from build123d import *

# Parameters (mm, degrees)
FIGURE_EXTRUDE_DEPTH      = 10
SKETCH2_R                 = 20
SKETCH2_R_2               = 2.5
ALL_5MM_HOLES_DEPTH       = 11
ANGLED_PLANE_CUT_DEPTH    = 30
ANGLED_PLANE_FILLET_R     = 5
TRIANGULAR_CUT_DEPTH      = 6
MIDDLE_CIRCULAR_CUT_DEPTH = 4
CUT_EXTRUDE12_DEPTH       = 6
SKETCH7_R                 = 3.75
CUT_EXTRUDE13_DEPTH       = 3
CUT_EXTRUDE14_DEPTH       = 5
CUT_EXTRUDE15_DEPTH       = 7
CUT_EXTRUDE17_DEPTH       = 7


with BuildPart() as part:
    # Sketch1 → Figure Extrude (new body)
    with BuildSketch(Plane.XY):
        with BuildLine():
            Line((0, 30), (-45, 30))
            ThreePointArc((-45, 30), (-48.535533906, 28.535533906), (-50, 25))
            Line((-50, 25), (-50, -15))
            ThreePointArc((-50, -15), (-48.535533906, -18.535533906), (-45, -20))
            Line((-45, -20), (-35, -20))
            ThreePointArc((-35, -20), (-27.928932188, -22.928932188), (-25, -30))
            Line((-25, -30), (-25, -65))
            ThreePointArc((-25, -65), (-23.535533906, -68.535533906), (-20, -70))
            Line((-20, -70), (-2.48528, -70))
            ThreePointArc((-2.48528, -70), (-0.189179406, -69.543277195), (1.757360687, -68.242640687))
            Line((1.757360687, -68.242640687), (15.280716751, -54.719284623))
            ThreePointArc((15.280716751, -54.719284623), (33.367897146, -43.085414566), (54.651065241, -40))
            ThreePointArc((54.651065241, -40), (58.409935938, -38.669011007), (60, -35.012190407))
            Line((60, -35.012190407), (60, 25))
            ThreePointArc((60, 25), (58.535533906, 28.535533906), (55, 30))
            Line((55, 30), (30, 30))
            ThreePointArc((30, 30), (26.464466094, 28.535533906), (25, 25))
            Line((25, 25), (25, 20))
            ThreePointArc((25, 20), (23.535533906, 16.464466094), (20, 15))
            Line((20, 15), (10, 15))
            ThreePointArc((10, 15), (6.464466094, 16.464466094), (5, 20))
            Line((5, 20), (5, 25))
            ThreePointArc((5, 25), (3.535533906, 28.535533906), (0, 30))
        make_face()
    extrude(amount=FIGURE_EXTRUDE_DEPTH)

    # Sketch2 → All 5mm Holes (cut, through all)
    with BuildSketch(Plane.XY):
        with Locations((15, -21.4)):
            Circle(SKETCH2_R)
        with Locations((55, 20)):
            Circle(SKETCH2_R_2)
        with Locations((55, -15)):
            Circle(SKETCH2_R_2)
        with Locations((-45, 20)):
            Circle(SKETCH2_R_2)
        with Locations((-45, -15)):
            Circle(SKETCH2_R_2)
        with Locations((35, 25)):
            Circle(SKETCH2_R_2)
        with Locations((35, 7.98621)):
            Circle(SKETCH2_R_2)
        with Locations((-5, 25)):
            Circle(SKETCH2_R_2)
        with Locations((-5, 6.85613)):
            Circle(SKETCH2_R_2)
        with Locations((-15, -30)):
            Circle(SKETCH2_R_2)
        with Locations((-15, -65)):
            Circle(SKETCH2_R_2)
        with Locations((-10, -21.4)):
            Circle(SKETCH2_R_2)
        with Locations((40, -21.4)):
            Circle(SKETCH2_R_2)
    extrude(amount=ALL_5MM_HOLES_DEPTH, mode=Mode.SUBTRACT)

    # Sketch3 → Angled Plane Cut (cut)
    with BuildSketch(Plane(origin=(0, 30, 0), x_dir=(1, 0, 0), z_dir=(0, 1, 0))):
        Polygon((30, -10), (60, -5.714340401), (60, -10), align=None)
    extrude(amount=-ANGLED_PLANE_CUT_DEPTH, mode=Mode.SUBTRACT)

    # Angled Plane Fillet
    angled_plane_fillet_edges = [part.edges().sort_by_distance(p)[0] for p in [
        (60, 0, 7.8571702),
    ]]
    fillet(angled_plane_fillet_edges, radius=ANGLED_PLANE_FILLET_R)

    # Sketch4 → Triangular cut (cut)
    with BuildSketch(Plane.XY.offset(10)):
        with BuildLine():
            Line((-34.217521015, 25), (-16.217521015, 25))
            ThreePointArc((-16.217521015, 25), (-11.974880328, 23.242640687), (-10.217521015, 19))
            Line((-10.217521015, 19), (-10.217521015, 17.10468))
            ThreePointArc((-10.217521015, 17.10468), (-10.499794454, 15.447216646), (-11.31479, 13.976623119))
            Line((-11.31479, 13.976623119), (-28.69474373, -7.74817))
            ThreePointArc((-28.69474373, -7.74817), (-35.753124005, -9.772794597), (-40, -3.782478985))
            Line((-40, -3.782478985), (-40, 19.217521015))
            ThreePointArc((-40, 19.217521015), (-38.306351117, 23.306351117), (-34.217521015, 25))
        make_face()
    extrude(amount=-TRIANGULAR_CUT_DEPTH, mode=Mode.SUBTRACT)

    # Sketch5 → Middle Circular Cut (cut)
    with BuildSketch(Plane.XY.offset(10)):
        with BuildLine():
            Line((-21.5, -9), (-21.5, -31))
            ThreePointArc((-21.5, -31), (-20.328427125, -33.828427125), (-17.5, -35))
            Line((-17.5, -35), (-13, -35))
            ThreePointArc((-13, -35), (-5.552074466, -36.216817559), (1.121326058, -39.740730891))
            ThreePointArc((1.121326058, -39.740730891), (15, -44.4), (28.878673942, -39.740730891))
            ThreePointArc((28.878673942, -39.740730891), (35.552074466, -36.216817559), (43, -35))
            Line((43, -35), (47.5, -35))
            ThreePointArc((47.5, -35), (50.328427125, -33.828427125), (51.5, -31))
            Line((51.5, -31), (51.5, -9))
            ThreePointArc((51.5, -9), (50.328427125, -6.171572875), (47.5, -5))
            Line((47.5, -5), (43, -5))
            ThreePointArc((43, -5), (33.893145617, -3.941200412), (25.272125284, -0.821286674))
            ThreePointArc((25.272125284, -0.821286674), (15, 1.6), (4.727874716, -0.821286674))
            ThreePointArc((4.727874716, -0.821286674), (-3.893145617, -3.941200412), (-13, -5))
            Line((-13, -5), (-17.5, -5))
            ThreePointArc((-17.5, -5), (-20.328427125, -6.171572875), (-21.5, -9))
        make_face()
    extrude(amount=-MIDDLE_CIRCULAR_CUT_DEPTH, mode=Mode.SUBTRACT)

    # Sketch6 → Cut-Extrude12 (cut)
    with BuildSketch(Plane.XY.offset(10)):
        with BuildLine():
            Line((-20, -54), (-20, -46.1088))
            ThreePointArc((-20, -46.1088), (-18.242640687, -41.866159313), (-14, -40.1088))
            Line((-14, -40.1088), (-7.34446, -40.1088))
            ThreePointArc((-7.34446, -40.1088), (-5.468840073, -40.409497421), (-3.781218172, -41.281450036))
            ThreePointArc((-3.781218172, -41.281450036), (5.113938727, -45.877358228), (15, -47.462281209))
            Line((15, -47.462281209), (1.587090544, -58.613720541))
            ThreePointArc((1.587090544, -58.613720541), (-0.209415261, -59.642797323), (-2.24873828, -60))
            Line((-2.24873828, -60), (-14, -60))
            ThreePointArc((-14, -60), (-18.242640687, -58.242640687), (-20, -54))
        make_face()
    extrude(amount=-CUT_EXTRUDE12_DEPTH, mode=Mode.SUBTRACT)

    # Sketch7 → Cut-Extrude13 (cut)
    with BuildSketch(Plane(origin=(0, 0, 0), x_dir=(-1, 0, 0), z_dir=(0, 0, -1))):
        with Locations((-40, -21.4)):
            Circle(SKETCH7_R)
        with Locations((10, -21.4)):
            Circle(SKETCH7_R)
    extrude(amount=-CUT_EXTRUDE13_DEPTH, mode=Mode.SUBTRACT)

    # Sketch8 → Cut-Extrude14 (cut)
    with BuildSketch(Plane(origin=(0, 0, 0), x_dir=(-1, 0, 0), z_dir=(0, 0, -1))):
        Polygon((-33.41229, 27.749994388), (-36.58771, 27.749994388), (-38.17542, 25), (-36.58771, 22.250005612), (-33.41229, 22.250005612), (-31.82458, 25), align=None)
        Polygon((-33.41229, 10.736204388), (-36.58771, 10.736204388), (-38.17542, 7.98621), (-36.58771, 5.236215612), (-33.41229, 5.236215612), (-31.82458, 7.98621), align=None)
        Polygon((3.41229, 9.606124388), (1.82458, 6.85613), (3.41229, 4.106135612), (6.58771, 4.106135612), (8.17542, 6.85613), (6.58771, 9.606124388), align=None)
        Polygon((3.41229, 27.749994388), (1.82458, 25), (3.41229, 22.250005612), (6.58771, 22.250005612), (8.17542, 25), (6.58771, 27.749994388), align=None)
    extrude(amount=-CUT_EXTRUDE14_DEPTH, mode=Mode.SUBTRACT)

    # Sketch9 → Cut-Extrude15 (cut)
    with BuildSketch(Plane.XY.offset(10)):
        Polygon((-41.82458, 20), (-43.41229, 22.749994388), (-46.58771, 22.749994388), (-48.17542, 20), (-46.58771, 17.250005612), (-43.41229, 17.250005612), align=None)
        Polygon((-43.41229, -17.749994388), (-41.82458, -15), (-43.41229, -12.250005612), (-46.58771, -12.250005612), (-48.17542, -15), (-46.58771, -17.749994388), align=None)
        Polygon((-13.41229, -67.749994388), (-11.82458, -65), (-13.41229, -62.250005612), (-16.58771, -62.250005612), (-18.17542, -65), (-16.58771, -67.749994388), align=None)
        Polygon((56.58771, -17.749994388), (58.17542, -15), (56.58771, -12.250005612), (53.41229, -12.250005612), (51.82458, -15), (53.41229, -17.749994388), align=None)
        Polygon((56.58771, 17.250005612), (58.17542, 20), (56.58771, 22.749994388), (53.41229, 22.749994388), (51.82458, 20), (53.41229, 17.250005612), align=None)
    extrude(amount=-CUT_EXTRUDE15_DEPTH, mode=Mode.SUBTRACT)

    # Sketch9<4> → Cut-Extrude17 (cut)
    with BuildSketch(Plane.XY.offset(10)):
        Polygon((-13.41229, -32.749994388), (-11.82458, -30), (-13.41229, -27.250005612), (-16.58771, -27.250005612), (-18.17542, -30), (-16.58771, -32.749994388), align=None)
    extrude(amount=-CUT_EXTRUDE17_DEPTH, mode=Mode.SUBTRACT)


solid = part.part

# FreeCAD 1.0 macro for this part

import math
import FreeCAD as App
import Part
import Sketcher
Q = App.Units.Quantity


def edges_at(feature, points):
    """Names of the edges that pass closest to the given points."""
    edges = feature.Shape.Edges
    near = lambda p: min(range(len(edges)), key=lambda i: edges[i].distToShape(Part.Vertex(*p))[0])
    return sorted({f"Edge{near(p) + 1}" for p in points})

doc = App.newDocument("Part")
body = doc.addObject("PartDesign::Body", "Body")

# Sketch on XY plane
sketch1 = doc.addObject("Sketcher::SketchObject", "Sketch")
body.addObject(sketch1)
sketch1.AttachmentSupport = (doc.XY_Plane, [""])
sketch1.MapMode = "FlatFace"
sketch1.addGeometry([
    Part.LineSegment(App.Vector(0, 30, 0), App.Vector(-45, 30, 0)),  # 0
    Part.ArcOfCircle(Part.Circle(App.Vector(-45, 25, 0), App.Vector(0, 0, 1), 5), math.radians(90), math.radians(180)),  # 1
    Part.LineSegment(App.Vector(-50, 25, 0), App.Vector(-50, -15, 0)),  # 2
    Part.ArcOfCircle(Part.Circle(App.Vector(-45, -15, 0), App.Vector(0, 0, 1), 5), math.radians(180), math.radians(270)),  # 3
    Part.LineSegment(App.Vector(-45, -20, 0), App.Vector(-35, -20, 0)),  # 4
    Part.ArcOfCircle(Part.Circle(App.Vector(-35, -30, 0), App.Vector(0, 0, 1), 10), math.radians(0), math.radians(90)),  # 5
    Part.LineSegment(App.Vector(-25, -30, 0), App.Vector(-25, -65, 0)),  # 6
    Part.ArcOfCircle(Part.Circle(App.Vector(-20, -65, 0), App.Vector(0, 0, 1), 5), math.radians(180), math.radians(270)),  # 7
    Part.LineSegment(App.Vector(-20, -70, 0), App.Vector(-2.48528, -70, 0)),  # 8
    Part.ArcOfCircle(Part.Circle(App.Vector(-2.48528, -64, 0), App.Vector(0, 0, 1), 6), math.radians(-90), math.radians(-45)),  # 9
    Part.LineSegment(App.Vector(1.757361, -68.242641, 0), App.Vector(15.280717, -54.719285, 0)),  # 10
    Part.ArcOfCircle(Part.Circle(App.Vector(51.114498, -90.553066, 0), App.Vector(0, 0, 1), 50.67662), math.radians(85.998249), math.radians(135)),  # 11
    Part.ArcOfCircle(Part.Circle(App.Vector(55, -35.01219, 0), App.Vector(0, 0, 1), 5), math.radians(-94.001751), math.radians(0)),  # 12
    Part.LineSegment(App.Vector(60, -35.01219, 0), App.Vector(60, 25, 0)),  # 13
    Part.ArcOfCircle(Part.Circle(App.Vector(55, 25, 0), App.Vector(0, 0, 1), 5), math.radians(0), math.radians(90)),  # 14
    Part.LineSegment(App.Vector(55, 30, 0), App.Vector(30, 30, 0)),  # 15
    Part.ArcOfCircle(Part.Circle(App.Vector(30, 25, 0), App.Vector(0, 0, 1), 5), math.radians(90), math.radians(180)),  # 16
    Part.LineSegment(App.Vector(25, 25, 0), App.Vector(25, 20, 0)),  # 17
    Part.ArcOfCircle(Part.Circle(App.Vector(20, 20, 0), App.Vector(0, 0, 1), 5), math.radians(-90), math.radians(0)),  # 18
    Part.LineSegment(App.Vector(20, 15, 0), App.Vector(10, 15, 0)),  # 19
    Part.ArcOfCircle(Part.Circle(App.Vector(10, 20, 0), App.Vector(0, 0, 1), 5), math.radians(180), math.radians(270)),  # 20
    Part.LineSegment(App.Vector(5, 20, 0), App.Vector(5, 25, 0)),  # 21
    Part.ArcOfCircle(Part.Circle(App.Vector(0, 25, 0), App.Vector(0, 0, 1), 5), math.radians(0), math.radians(90)),  # 22
], False)
sketch1.addConstraint([
    Sketcher.Constraint("Tangent", 0, 2, 1, 1),
    Sketcher.Constraint("Tangent", 1, 2, 2, 1),
    Sketcher.Constraint("Tangent", 2, 2, 3, 1),
    Sketcher.Constraint("Tangent", 3, 2, 4, 1),
    Sketcher.Constraint("Tangent", 4, 2, 5, 2),
    Sketcher.Constraint("Tangent", 5, 1, 6, 1),
    Sketcher.Constraint("Tangent", 6, 2, 7, 1),
    Sketcher.Constraint("Tangent", 7, 2, 8, 1),
    Sketcher.Constraint("Tangent", 8, 2, 9, 1),
    Sketcher.Constraint("Tangent", 9, 2, 10, 1),
    Sketcher.Constraint("Tangent", 10, 2, 11, 2),
    Sketcher.Constraint("Tangent", 11, 1, 12, 1),
    Sketcher.Constraint("Tangent", 12, 2, 13, 1),
    Sketcher.Constraint("Tangent", 13, 2, 14, 1),
    Sketcher.Constraint("Tangent", 14, 2, 15, 1),
    Sketcher.Constraint("Tangent", 15, 2, 16, 1),
    Sketcher.Constraint("Tangent", 16, 2, 17, 1),
    Sketcher.Constraint("Tangent", 17, 2, 18, 2),
    Sketcher.Constraint("Tangent", 18, 1, 19, 1),
    Sketcher.Constraint("Tangent", 19, 2, 20, 2),
    Sketcher.Constraint("Tangent", 20, 1, 21, 1),
    Sketcher.Constraint("Tangent", 21, 2, 22, 1),
    Sketcher.Constraint("Tangent", 22, 2, 0, 1),
    Sketcher.Constraint("Horizontal", 0),
    Sketcher.Constraint("Vertical", 2),
    Sketcher.Constraint("Horizontal", 4),
    Sketcher.Constraint("Vertical", 6),
    Sketcher.Constraint("Horizontal", 8),
    Sketcher.Constraint("Vertical", 13),
    Sketcher.Constraint("Horizontal", 15),
    Sketcher.Constraint("Vertical", 17),
    Sketcher.Constraint("Horizontal", 19),
    Sketcher.Constraint("Vertical", 21),
    Sketcher.Constraint("Equal", 1, 3),
    Sketcher.Constraint("Equal", 3, 7),
    Sketcher.Constraint("Equal", 7, 12),
    Sketcher.Constraint("Equal", 12, 14),
    Sketcher.Constraint("Equal", 14, 16),
    Sketcher.Constraint("Equal", 16, 18),
    Sketcher.Constraint("Equal", 18, 20),
    Sketcher.Constraint("Equal", 20, 22),
    Sketcher.Constraint("PointOnObject", 22, 3, -2),
    Sketcher.Constraint("Horizontal", 1, 3, 14, 3),
    Sketcher.Constraint("Equal", 4, 19),
    Sketcher.Constraint("Radius", 1, Q("5 mm")),
    Sketcher.Constraint("Radius", 5, Q("10 mm")),
    Sketcher.Constraint("Radius", 9, Q("6 mm")),
    Sketcher.Constraint("DistanceX", 0, 2, 0, 1, Q("45 mm")),
    Sketcher.Constraint("DistanceX", 4, 1, 4, 2, Q("10 mm")),
    Sketcher.Constraint("DistanceX", 15, 2, 15, 1, Q("25 mm")),
    Sketcher.Constraint("DistanceY", 2, 2, 2, 1, Q("40 mm")),
    Sketcher.Constraint("DistanceY", 6, 2, 6, 1, Q("35 mm")),
    Sketcher.Constraint("DistanceY", 17, 2, 17, 1, Q("5 mm")),
    Sketcher.Constraint("Angle", 10, Q("45 deg")),
    Sketcher.Constraint("DistanceY", -1, 1, 1, 3, Q("25 mm")),
    Sketcher.Constraint("DistanceY", 11, 1, -1, 1, Q("40 mm")),
    Sketcher.Constraint("Radius", 11, Q("50.67662 mm")),
    Sketcher.Constraint("DistanceX", 8, 1, 8, 2, Q("17.51472 mm")),
])
pad1 = doc.addObject("PartDesign::Pad", "Pad")
body.addObject(pad1)
pad1.Profile = sketch1
pad1.Length = 10

# Sketch on XY plane
sketch2 = doc.addObject("Sketcher::SketchObject", "Sketch001")
body.addObject(sketch2)
sketch2.AttachmentSupport = (doc.XY_Plane, [""])
sketch2.MapMode = "FlatFace"
sketch2.addGeometry([
    Part.Circle(App.Vector(15, -21.4, 0), App.Vector(0, 0, 1), 20),  # 0
    Part.Circle(App.Vector(55, 20, 0), App.Vector(0, 0, 1), 2.5),  # 1
    Part.Circle(App.Vector(55, -15, 0), App.Vector(0, 0, 1), 2.5),  # 2
    Part.Circle(App.Vector(-45, 20, 0), App.Vector(0, 0, 1), 2.5),  # 3
    Part.Circle(App.Vector(-45, -15, 0), App.Vector(0, 0, 1), 2.5),  # 4
    Part.Circle(App.Vector(35, 25, 0), App.Vector(0, 0, 1), 2.5),  # 5
    Part.Circle(App.Vector(35, 7.98621, 0), App.Vector(0, 0, 1), 2.5),  # 6
    Part.Circle(App.Vector(-5, 25, 0), App.Vector(0, 0, 1), 2.5),  # 7
    Part.Circle(App.Vector(-5, 6.85613, 0), App.Vector(0, 0, 1), 2.5),  # 8
    Part.Circle(App.Vector(-15, -30, 0), App.Vector(0, 0, 1), 2.5),  # 9
    Part.Circle(App.Vector(-15, -65, 0), App.Vector(0, 0, 1), 2.5),  # 10
    Part.Circle(App.Vector(-10, -21.4, 0), App.Vector(0, 0, 1), 2.5),  # 11
    Part.Circle(App.Vector(40, -21.4, 0), App.Vector(0, 0, 1), 2.5),  # 12
], False)
sketch2.addConstraint([
    Sketcher.Constraint("Equal", 1, 2),
    Sketcher.Constraint("Equal", 2, 3),
    Sketcher.Constraint("Equal", 3, 4),
    Sketcher.Constraint("Equal", 4, 5),
    Sketcher.Constraint("Equal", 5, 6),
    Sketcher.Constraint("Equal", 6, 7),
    Sketcher.Constraint("Equal", 7, 8),
    Sketcher.Constraint("Equal", 8, 9),
    Sketcher.Constraint("Equal", 9, 10),
    Sketcher.Constraint("Equal", 10, 11),
    Sketcher.Constraint("Equal", 11, 12),
    Sketcher.Constraint("Horizontal", 1, 3, 3, 3),
    Sketcher.Constraint("Horizontal", 2, 3, 4, 3),
    Sketcher.Constraint("Horizontal", 5, 3, 7, 3),
    Sketcher.Constraint("Horizontal", 0, 3, 11, 3),
    Sketcher.Constraint("Horizontal", 11, 3, 12, 3),
    Sketcher.Constraint("Vertical", 1, 3, 2, 3),
    Sketcher.Constraint("Vertical", 3, 3, 4, 3),
    Sketcher.Constraint("Vertical", 5, 3, 6, 3),
    Sketcher.Constraint("Vertical", 7, 3, 8, 3),
    Sketcher.Constraint("Vertical", 9, 3, 10, 3),
    Sketcher.Constraint("Diameter", 0, Q("40 mm")),
    Sketcher.Constraint("Diameter", 1, Q("5 mm")),
    Sketcher.Constraint("DistanceX", -1, 1, 0, 3, Q("15 mm")),
    Sketcher.Constraint("DistanceX", -1, 1, 1, 3, Q("55 mm")),
    Sketcher.Constraint("DistanceY", -1, 1, 1, 3, Q("20 mm")),
    Sketcher.Constraint("DistanceY", 2, 3, -1, 1, Q("15 mm")),
    Sketcher.Constraint("DistanceX", 3, 3, -1, 1, Q("45 mm")),
    Sketcher.Constraint("DistanceX", -1, 1, 5, 3, Q("35 mm")),
    Sketcher.Constraint("DistanceY", -1, 1, 5, 3, Q("25 mm")),
    Sketcher.Constraint("DistanceX", 7, 3, -1, 1, Q("5 mm")),
    Sketcher.Constraint("DistanceX", 9, 3, -1, 1, Q("15 mm")),
    Sketcher.Constraint("DistanceY", 9, 3, -1, 1, Q("30 mm")),
    Sketcher.Constraint("DistanceY", 10, 3, -1, 1, Q("65 mm")),
    Sketcher.Constraint("DistanceX", 11, 3, -1, 1, Q("10 mm")),
    Sketcher.Constraint("DistanceX", -1, 1, 12, 3, Q("40 mm")),
    Sketcher.Constraint("DistanceY", 0, 3, -1, 1, Q("21.4 mm")),
    Sketcher.Constraint("DistanceY", -1, 1, 6, 3, Q("7.98621 mm")),
    Sketcher.Constraint("DistanceY", -1, 1, 8, 3, Q("6.85613 mm")),
])
pocket1 = doc.addObject("PartDesign::Pocket", "Pocket")
body.addObject(pocket1)
pocket1.Profile = sketch2
pocket1.Type = "ThroughAll"
pocket1.Reversed = True

# Sketch on XZ plane
sketch3 = doc.addObject("Sketcher::SketchObject", "Sketch002")
body.addObject(sketch3)
sketch3.AttachmentSupport = (doc.XZ_Plane, [""])
sketch3.MapMode = "FlatFace"
sketch3.AttachmentOffset = App.Placement(App.Vector(0, 0, -30), App.Rotation())
sketch3.addGeometry([
    Part.LineSegment(App.Vector(60, 5.71434, 0), App.Vector(30, 10, 0)),
    Part.LineSegment(App.Vector(30, 10, 0), App.Vector(60, 10, 0)),
    Part.LineSegment(App.Vector(60, 10, 0), App.Vector(60, 5.71434, 0)),
], False)
sketch3.addConstraint([
    Sketcher.Constraint("Coincident", 0, 2, 1, 1),
    Sketcher.Constraint("Coincident", 1, 2, 2, 1),
    Sketcher.Constraint("Coincident", 2, 2, 0, 1),
    Sketcher.Constraint("Horizontal", 1),
    Sketcher.Constraint("Vertical", 2),
    Sketcher.Constraint("DistanceX", 1, 1, 1, 2, Q("30 mm")),
    Sketcher.Constraint("DistanceX", -1, 1, 0, 2, Q("30 mm")),
    Sketcher.Constraint("DistanceY", -1, 1, 0, 2, Q("10 mm")),
    Sketcher.Constraint("Angle", 0, Q("171.87 deg")),
])
pocket2 = doc.addObject("PartDesign::Pocket", "Pocket001")
body.addObject(pocket2)
pocket2.Profile = sketch3
pocket2.Length = 30
pocket2.Reversed = True
doc.recompute()

fillet = doc.addObject("PartDesign::Fillet", "Fillet")
body.addObject(fillet)
fillet.Base = (pocket2, edges_at(pocket2, [(60, 0, 7.857)]))
fillet.Radius = 5

# Sketch on XY plane
sketch4 = doc.addObject("Sketcher::SketchObject", "Sketch003")
body.addObject(sketch4)
sketch4.AttachmentSupport = (doc.XY_Plane, [""])
sketch4.MapMode = "FlatFace"
sketch4.AttachmentOffset = App.Placement(App.Vector(0, 0, 10), App.Rotation())
sketch4.addGeometry([
    Part.LineSegment(App.Vector(-16.217521, 25, 0), App.Vector(-34.217521, 25, 0)),  # 0
    Part.ArcOfCircle(Part.Circle(App.Vector(-34.217521, 19.217521, 0), App.Vector(0, 0, 1), 5.782479), math.radians(90), math.radians(180)),  # 1
    Part.LineSegment(App.Vector(-40, 19.217521, 0), App.Vector(-40, -3.782479, 0)),  # 2
    Part.ArcOfCircle(Part.Circle(App.Vector(-33.651823, -3.782479, 0), App.Vector(0, 0, 1), 6.348177), math.radians(-180), math.radians(-38.66)),  # 3
    Part.LineSegment(App.Vector(-28.694744, -7.74817, 0), App.Vector(-11.31479, 13.976623, 0)),  # 4
    Part.ArcOfCircle(Part.Circle(App.Vector(-15.224834, 17.10468, 0), App.Vector(0, 0, 1), 5.007313), math.radians(-38.66), math.radians(0)),  # 5
    Part.LineSegment(App.Vector(-10.217521, 17.10468, 0), App.Vector(-10.217521, 19, 0)),  # 6
    Part.ArcOfCircle(Part.Circle(App.Vector(-16.217521, 19, 0), App.Vector(0, 0, 1), 6), math.radians(0), math.radians(90)),  # 7
], False)
sketch4.addConstraint([
    Sketcher.Constraint("Tangent", 0, 2, 1, 1),
    Sketcher.Constraint("Tangent", 1, 2, 2, 1),
    Sketcher.Constraint("Tangent", 2, 2, 3, 1),
    Sketcher.Constraint("Tangent", 3, 2, 4, 1),
    Sketcher.Constraint("Tangent", 4, 2, 5, 1),
    Sketcher.Constraint("Tangent", 5, 2, 6, 1),
    Sketcher.Constraint("Tangent", 6, 2, 7, 1),
    Sketcher.Constraint("Tangent", 7, 2, 0, 1),
    Sketcher.Constraint("Horizontal", 0),
    Sketcher.Constraint("Vertical", 2),
    Sketcher.Constraint("Vertical", 6),
    Sketcher.Constraint("Radius", 7, Q("6 mm")),
    Sketcher.Constraint("DistanceX", 0, 2, 0, 1, Q("18 mm")),
    Sketcher.Constraint("DistanceY", 2, 2, 2, 1, Q("23 mm")),
    Sketcher.Constraint("DistanceY", -1, 1, 7, 3, Q("19 mm")),
    Sketcher.Constraint("DistanceX", 1, 2, -1, 1, Q("40 mm")),
    Sketcher.Constraint("Angle", 4, Q("51.34 deg")),
    Sketcher.Constraint("Radius", 1, Q("5.782479 mm")),
    Sketcher.Constraint("Radius", 3, Q("6.348177 mm")),
    Sketcher.Constraint("Radius", 5, Q("5.007313 mm")),
])
pocket3 = doc.addObject("PartDesign::Pocket", "Pocket002")
body.addObject(pocket3)
pocket3.Profile = sketch4
pocket3.Length = 6

# Sketch on XY plane
sketch5 = doc.addObject("Sketcher::SketchObject", "Sketch004")
body.addObject(sketch5)
sketch5.AttachmentSupport = (doc.XY_Plane, [""])
sketch5.MapMode = "FlatFace"
sketch5.AttachmentOffset = App.Placement(App.Vector(0, 0, 10), App.Rotation())
sketch5.addGeometry([
    Part.LineSegment(App.Vector(-21.5, -9, 0), App.Vector(-21.5, -31, 0)),  # 0
    Part.ArcOfCircle(Part.Circle(App.Vector(-17.5, -31, 0), App.Vector(0, 0, 1), 4), math.radians(180), math.radians(270)),  # 1
    Part.LineSegment(App.Vector(-17.5, -35, 0), App.Vector(-13, -35, 0)),  # 2
    Part.ArcOfCircle(Part.Circle(App.Vector(-13, -58.402128, 0), App.Vector(0, 0, 1), 23.402128), math.radians(52.884725), math.radians(90)),  # 3
    Part.ArcOfCircle(Part.Circle(App.Vector(15, -21.4, 0), App.Vector(0, 0, 1), 23), math.radians(-127.115275), math.radians(-52.884725)),  # 4
    Part.ArcOfCircle(Part.Circle(App.Vector(43, -58.402128, 0), App.Vector(0, 0, 1), 23.402128), math.radians(90), math.radians(127.115275)),  # 5
    Part.LineSegment(App.Vector(43, -35, 0), App.Vector(47.5, -35, 0)),  # 6
    Part.ArcOfCircle(Part.Circle(App.Vector(47.5, -31, 0), App.Vector(0, 0, 1), 4), math.radians(-90), math.radians(0)),  # 7
    Part.LineSegment(App.Vector(51.5, -31, 0), App.Vector(51.5, -9, 0)),  # 8
    Part.ArcOfCircle(Part.Circle(App.Vector(47.5, -9, 0), App.Vector(0, 0, 1), 4), math.radians(0), math.radians(90)),  # 9
    Part.LineSegment(App.Vector(47.5, -5, 0), App.Vector(43, -5, 0)),  # 10
    Part.ArcOfCircle(Part.Circle(App.Vector(43, 34.693939, 0), App.Vector(0, 0, 1), 39.693939), math.radians(-116.526657), math.radians(-90)),  # 11
    Part.ArcOfCircle(Part.Circle(App.Vector(15, -21.4, 0), App.Vector(0, 0, 1), 23), math.radians(63.473343), math.radians(116.526657)),  # 12
    Part.ArcOfCircle(Part.Circle(App.Vector(-13, 34.693939, 0), App.Vector(0, 0, 1), 39.693939), math.radians(-90), math.radians(-63.473343)),  # 13
    Part.LineSegment(App.Vector(-13, -5, 0), App.Vector(-17.5, -5, 0)),  # 14
    Part.ArcOfCircle(Part.Circle(App.Vector(-17.5, -9, 0), App.Vector(0, 0, 1), 4), math.radians(90), math.radians(180)),  # 15
], False)
sketch5.addConstraint([
    Sketcher.Constraint("Tangent", 0, 2, 1, 1),
    Sketcher.Constraint("Tangent", 1, 2, 2, 1),
    Sketcher.Constraint("Tangent", 2, 2, 3, 2),
    Sketcher.Constraint("Tangent", 3, 1, 4, 1),
    Sketcher.Constraint("Tangent", 4, 2, 5, 2),
    Sketcher.Constraint("Tangent", 5, 1, 6, 1),
    Sketcher.Constraint("Tangent", 6, 2, 7, 1),
    Sketcher.Constraint("Tangent", 7, 2, 8, 1),
    Sketcher.Constraint("Tangent", 8, 2, 9, 1),
    Sketcher.Constraint("Tangent", 9, 2, 10, 1),
    Sketcher.Constraint("Tangent", 10, 2, 11, 2),
    Sketcher.Constraint("Tangent", 11, 1, 12, 1),
    Sketcher.Constraint("Tangent", 12, 2, 13, 2),
    Sketcher.Constraint("Tangent", 13, 1, 14, 1),
    Sketcher.Constraint("Tangent", 14, 2, 15, 1),
    Sketcher.Constraint("Tangent", 15, 2, 0, 1),
    Sketcher.Constraint("Vertical", 0),
    Sketcher.Constraint("Horizontal", 2),
    Sketcher.Constraint("Horizontal", 6),
    Sketcher.Constraint("Vertical", 8),
    Sketcher.Constraint("Horizontal", 10),
    Sketcher.Constraint("Horizontal", 14),
    Sketcher.Constraint("Coincident", 12, 3, 4, 3),
    Sketcher.Constraint("Equal", 3, 5),
    Sketcher.Constraint("Equal", 1, 7),
    Sketcher.Constraint("Equal", 7, 9),
    Sketcher.Constraint("Equal", 4, 12),
    Sketcher.Constraint("Equal", 11, 13),
    Sketcher.Constraint("Equal", 9, 15),
    Sketcher.Constraint("Horizontal", 3, 3, 5, 3),
    Sketcher.Constraint("Horizontal", 11, 3, 13, 3),
    Sketcher.Constraint("Vertical", 5, 3, 11, 3),
    Sketcher.Constraint("Equal", 2, 6),
    Sketcher.Constraint("Radius", 1, Q("4 mm")),
    Sketcher.Constraint("Radius", 4, Q("23 mm")),
    Sketcher.Constraint("DistanceY", 0, 2, 0, 1, Q("22 mm")),
    Sketcher.Constraint("DistanceX", 2, 1, 2, 2, Q("4.5 mm")),
    Sketcher.Constraint("DistanceY", 1, 3, -1, 1, Q("31 mm")),
    Sketcher.Constraint("DistanceX", 3, 3, -1, 1, Q("13 mm")),
    Sketcher.Constraint("DistanceX", -1, 1, 4, 3, Q("15 mm")),
    Sketcher.Constraint("DistanceY", 4, 3, -1, 1, Q("21.4 mm")),
])
pocket4 = doc.addObject("PartDesign::Pocket", "Pocket003")
body.addObject(pocket4)
pocket4.Profile = sketch5
pocket4.Length = 4

# Sketch on XY plane
sketch6 = doc.addObject("Sketcher::SketchObject", "Sketch005")
body.addObject(sketch6)
sketch6.AttachmentSupport = (doc.XY_Plane, [""])
sketch6.MapMode = "FlatFace"
sketch6.AttachmentOffset = App.Placement(App.Vector(0, 0, 10), App.Rotation())
sketch6.addGeometry([
    Part.LineSegment(App.Vector(-20, -46.1088, 0), App.Vector(-20, -54, 0)),  # 0
    Part.ArcOfCircle(Part.Circle(App.Vector(-14, -54, 0), App.Vector(0, 0, 1), 6), math.radians(180), math.radians(270)),  # 1
    Part.LineSegment(App.Vector(-14, -60, 0), App.Vector(-2.248738, -60, 0)),  # 2
    Part.ArcOfCircle(Part.Circle(App.Vector(-2.248738, -54, 0), App.Vector(0, 0, 1), 6), math.radians(-90), math.radians(-50.26)),  # 3
    Part.LineSegment(App.Vector(1.587091, -58.613721, 0), App.Vector(15, -47.462281, 0)),  # 4
    Part.ArcOfCircle(Part.Circle(App.Vector(15, -15.837341, 0), App.Vector(0, 0, 1), 31.62494), math.radians(-126.432378), math.radians(-90)),  # 5
    Part.ArcOfCircle(Part.Circle(App.Vector(-7.34446, -46.1088, 0), App.Vector(0, 0, 1), 6), math.radians(53.567622), math.radians(90)),  # 6
    Part.LineSegment(App.Vector(-7.34446, -40.1088, 0), App.Vector(-14, -40.1088, 0)),  # 7
    Part.ArcOfCircle(Part.Circle(App.Vector(-14, -46.1088, 0), App.Vector(0, 0, 1), 6), math.radians(90), math.radians(180)),  # 8
], False)
sketch6.addConstraint([
    Sketcher.Constraint("Tangent", 0, 2, 1, 1),
    Sketcher.Constraint("Tangent", 1, 2, 2, 1),
    Sketcher.Constraint("Tangent", 2, 2, 3, 1),
    Sketcher.Constraint("Tangent", 3, 2, 4, 1),
    Sketcher.Constraint("Coincident", 4, 2, 5, 2),
    Sketcher.Constraint("Tangent", 5, 1, 6, 1),
    Sketcher.Constraint("Tangent", 6, 2, 7, 1),
    Sketcher.Constraint("Tangent", 7, 2, 8, 1),
    Sketcher.Constraint("Tangent", 8, 2, 0, 1),
    Sketcher.Constraint("Vertical", 0),
    Sketcher.Constraint("Horizontal", 2),
    Sketcher.Constraint("Horizontal", 7),
    Sketcher.Constraint("Equal", 1, 3),
    Sketcher.Constraint("Equal", 3, 6),
    Sketcher.Constraint("Equal", 6, 8),
    Sketcher.Constraint("Vertical", 5, 3, 4, 2),
    Sketcher.Constraint("Radius", 1, Q("6 mm")),
    Sketcher.Constraint("DistanceX", 1, 3, -1, 1, Q("14 mm")),
    Sketcher.Constraint("DistanceY", 1, 3, -1, 1, Q("54 mm")),
    Sketcher.Constraint("DistanceX", -1, 1, 5, 3, Q("15 mm")),
    Sketcher.Constraint("Angle", 4, Q("39.74 deg")),
    Sketcher.Constraint("Radius", 5, Q("31.62494 mm")),
    Sketcher.Constraint("DistanceY", 0, 2, 0, 1, Q("7.8912 mm")),
    Sketcher.Constraint("DistanceX", 2, 1, 2, 2, Q("11.751262 mm")),
])
pocket5 = doc.addObject("PartDesign::Pocket", "Pocket004")
body.addObject(pocket5)
pocket5.Profile = sketch6
pocket5.Length = 6

# Sketch on XY plane
sketch7 = doc.addObject("Sketcher::SketchObject", "Sketch006")
body.addObject(sketch7)
sketch7.AttachmentSupport = (doc.XY_Plane, [""])
sketch7.MapMode = "FlatFace"
sketch7.addGeometry([
    Part.Circle(App.Vector(40, -21.4, 0), App.Vector(0, 0, 1), 3.75),
    Part.Circle(App.Vector(-10, -21.4, 0), App.Vector(0, 0, 1), 3.75),
], False)
sketch7.addConstraint([
    Sketcher.Constraint("Equal", 0, 1),
    Sketcher.Constraint("Horizontal", 0, 3, 1, 3),
    Sketcher.Constraint("Diameter", 0, Q("7.5 mm")),
    Sketcher.Constraint("DistanceX", -1, 1, 0, 3, Q("40 mm")),
    Sketcher.Constraint("DistanceX", 1, 3, -1, 1, Q("10 mm")),
    Sketcher.Constraint("DistanceY", 0, 3, -1, 1, Q("21.4 mm")),
])
pocket6 = doc.addObject("PartDesign::Pocket", "Pocket005")
body.addObject(pocket6)
pocket6.Profile = sketch7
pocket6.Length = 3
pocket6.Reversed = True

# Sketch on XY plane
sketch8 = doc.addObject("Sketcher::SketchObject", "Sketch007")
body.addObject(sketch8)
sketch8.AttachmentSupport = (doc.XY_Plane, [""])
sketch8.MapMode = "FlatFace"
sketch8.addGeometry([
    Part.LineSegment(App.Vector(33.41229, 27.749994, 0), App.Vector(36.58771, 27.749994, 0)),  # 0
    Part.LineSegment(App.Vector(36.58771, 27.749994, 0), App.Vector(38.17542, 25, 0)),  # 1
    Part.LineSegment(App.Vector(38.17542, 25, 0), App.Vector(36.58771, 22.250006, 0)),  # 2
    Part.LineSegment(App.Vector(36.58771, 22.250006, 0), App.Vector(33.41229, 22.250006, 0)),  # 3
    Part.LineSegment(App.Vector(33.41229, 22.250006, 0), App.Vector(31.82458, 25, 0)),  # 4
    Part.LineSegment(App.Vector(31.82458, 25, 0), App.Vector(33.41229, 27.749994, 0)),  # 5
    Part.LineSegment(App.Vector(33.41229, 10.736204, 0), App.Vector(36.58771, 10.736204, 0)),  # 6
    Part.LineSegment(App.Vector(36.58771, 10.736204, 0), App.Vector(38.17542, 7.98621, 0)),  # 7
    Part.LineSegment(App.Vector(38.17542, 7.98621, 0), App.Vector(36.58771, 5.236216, 0)),  # 8
    Part.LineSegment(App.Vector(36.58771, 5.236216, 0), App.Vector(33.41229, 5.236216, 0)),  # 9
    Part.LineSegment(App.Vector(33.41229, 5.236216, 0), App.Vector(31.82458, 7.98621, 0)),  # 10
    Part.LineSegment(App.Vector(31.82458, 7.98621, 0), App.Vector(33.41229, 10.736204, 0)),  # 11
    Part.LineSegment(App.Vector(-3.41229, 9.606124, 0), App.Vector(-1.82458, 6.85613, 0)),  # 12
    Part.LineSegment(App.Vector(-1.82458, 6.85613, 0), App.Vector(-3.41229, 4.106136, 0)),  # 13
    Part.LineSegment(App.Vector(-3.41229, 4.106136, 0), App.Vector(-6.58771, 4.106136, 0)),  # 14
    Part.LineSegment(App.Vector(-6.58771, 4.106136, 0), App.Vector(-8.17542, 6.85613, 0)),  # 15
    Part.LineSegment(App.Vector(-8.17542, 6.85613, 0), App.Vector(-6.58771, 9.606124, 0)),  # 16
    Part.LineSegment(App.Vector(-6.58771, 9.606124, 0), App.Vector(-3.41229, 9.606124, 0)),  # 17
    Part.LineSegment(App.Vector(-3.41229, 27.749994, 0), App.Vector(-1.82458, 25, 0)),  # 18
    Part.LineSegment(App.Vector(-1.82458, 25, 0), App.Vector(-3.41229, 22.250006, 0)),  # 19
    Part.LineSegment(App.Vector(-3.41229, 22.250006, 0), App.Vector(-6.58771, 22.250006, 0)),  # 20
    Part.LineSegment(App.Vector(-6.58771, 22.250006, 0), App.Vector(-8.17542, 25, 0)),  # 21
    Part.LineSegment(App.Vector(-8.17542, 25, 0), App.Vector(-6.58771, 27.749994, 0)),  # 22
    Part.LineSegment(App.Vector(-6.58771, 27.749994, 0), App.Vector(-3.41229, 27.749994, 0)),  # 23
], False)
sketch8.addConstraint([
    Sketcher.Constraint("Coincident", 0, 2, 1, 1),
    Sketcher.Constraint("Coincident", 1, 2, 2, 1),
    Sketcher.Constraint("Coincident", 2, 2, 3, 1),
    Sketcher.Constraint("Coincident", 3, 2, 4, 1),
    Sketcher.Constraint("Coincident", 4, 2, 5, 1),
    Sketcher.Constraint("Coincident", 5, 2, 0, 1),
    Sketcher.Constraint("Coincident", 6, 2, 7, 1),
    Sketcher.Constraint("Coincident", 7, 2, 8, 1),
    Sketcher.Constraint("Coincident", 8, 2, 9, 1),
    Sketcher.Constraint("Coincident", 9, 2, 10, 1),
    Sketcher.Constraint("Coincident", 10, 2, 11, 1),
    Sketcher.Constraint("Coincident", 11, 2, 6, 1),
    Sketcher.Constraint("Coincident", 12, 2, 13, 1),
    Sketcher.Constraint("Coincident", 13, 2, 14, 1),
    Sketcher.Constraint("Coincident", 14, 2, 15, 1),
    Sketcher.Constraint("Coincident", 15, 2, 16, 1),
    Sketcher.Constraint("Coincident", 16, 2, 17, 1),
    Sketcher.Constraint("Coincident", 17, 2, 12, 1),
    Sketcher.Constraint("Coincident", 18, 2, 19, 1),
    Sketcher.Constraint("Coincident", 19, 2, 20, 1),
    Sketcher.Constraint("Coincident", 20, 2, 21, 1),
    Sketcher.Constraint("Coincident", 21, 2, 22, 1),
    Sketcher.Constraint("Coincident", 22, 2, 23, 1),
    Sketcher.Constraint("Coincident", 23, 2, 18, 1),
    Sketcher.Constraint("Horizontal", 0),
    Sketcher.Constraint("Horizontal", 3),
    Sketcher.Constraint("Horizontal", 6),
    Sketcher.Constraint("Horizontal", 9),
    Sketcher.Constraint("Horizontal", 14),
    Sketcher.Constraint("Horizontal", 17),
    Sketcher.Constraint("Horizontal", 20),
    Sketcher.Constraint("Horizontal", 23),
    Sketcher.Constraint("Parallel", 1, 4),
    Sketcher.Constraint("Parallel", 2, 5),
    Sketcher.Constraint("Parallel", 4, 7),
    Sketcher.Constraint("Parallel", 5, 8),
    Sketcher.Constraint("Parallel", 7, 10),
    Sketcher.Constraint("Parallel", 8, 11),
    Sketcher.Constraint("Parallel", 10, 12),
    Sketcher.Constraint("Parallel", 11, 13),
    Sketcher.Constraint("Parallel", 12, 15),
    Sketcher.Constraint("Parallel", 13, 16),
    Sketcher.Constraint("Parallel", 15, 18),
    Sketcher.Constraint("Parallel", 16, 19),
    Sketcher.Constraint("Parallel", 18, 21),
    Sketcher.Constraint("Parallel", 19, 22),
    Sketcher.Constraint("Horizontal", 1, 2, 4, 2),
    Sketcher.Constraint("Horizontal", 7, 2, 10, 2),
    Sketcher.Constraint("Horizontal", 12, 2, 15, 2),
    Sketcher.Constraint("Horizontal", 4, 2, 18, 2),
    Sketcher.Constraint("Horizontal", 3, 2, 19, 2),
    Sketcher.Constraint("Horizontal", 18, 2, 21, 2),
    Sketcher.Constraint("Horizontal", 5, 2, 22, 2),
    Sketcher.Constraint("Vertical", 0, 2, 2, 2),
    Sketcher.Constraint("Vertical", 3, 2, 5, 2),
    Sketcher.Constraint("Vertical", 2, 2, 6, 2),
    Sketcher.Constraint("Vertical", 1, 2, 7, 2),
    Sketcher.Constraint("Vertical", 6, 2, 8, 2),
    Sketcher.Constraint("Vertical", 5, 2, 9, 2),
    Sketcher.Constraint("Vertical", 14, 2, 16, 2),
    Sketcher.Constraint("Vertical", 12, 2, 18, 2),
    Sketcher.Constraint("Vertical", 17, 2, 19, 2),
    Sketcher.Constraint("Vertical", 16, 2, 20, 2),
    Sketcher.Constraint("Equal", 9, 14),
    Sketcher.Constraint("Angle", 1, Q("-60 deg")),
    Sketcher.Constraint("DistanceY", -1, 1, 1, 2, Q("25 mm")),
    Sketcher.Constraint("DistanceX", 13, 2, 8, 2, Q("40 mm")),
    Sketcher.Constraint("DistanceX", 0, 1, 0, 2, Q("3.17542 mm")),
    Sketcher.Constraint("DistanceY", 6, 2, 2, 2, Q("11.513801 mm")),
    Sketcher.Constraint("Distance", 1, Q("3.17542 mm")),
    Sketcher.Constraint("DistanceX", -1, 1, 0, 2, Q("36.58771 mm")),
    Sketcher.Constraint("DistanceY", -1, 1, 12, 2, Q("6.85613 mm")),
])
pocket7 = doc.addObject("PartDesign::Pocket", "Pocket006")
body.addObject(pocket7)
pocket7.Profile = sketch8
pocket7.Length = 5
pocket7.Reversed = True

# Sketch on XY plane
sketch9 = doc.addObject("Sketcher::SketchObject", "Sketch008")
body.addObject(sketch9)
sketch9.AttachmentSupport = (doc.XY_Plane, [""])
sketch9.MapMode = "FlatFace"
sketch9.AttachmentOffset = App.Placement(App.Vector(0, 0, 10), App.Rotation())
sketch9.addGeometry([
    Part.LineSegment(App.Vector(-41.82458, 20, 0), App.Vector(-43.41229, 22.749994, 0)),  # 0
    Part.LineSegment(App.Vector(-43.41229, 22.749994, 0), App.Vector(-46.58771, 22.749994, 0)),  # 1
    Part.LineSegment(App.Vector(-46.58771, 22.749994, 0), App.Vector(-48.17542, 20, 0)),  # 2
    Part.LineSegment(App.Vector(-48.17542, 20, 0), App.Vector(-46.58771, 17.250006, 0)),  # 3
    Part.LineSegment(App.Vector(-46.58771, 17.250006, 0), App.Vector(-43.41229, 17.250006, 0)),  # 4
    Part.LineSegment(App.Vector(-43.41229, 17.250006, 0), App.Vector(-41.82458, 20, 0)),  # 5
    Part.LineSegment(App.Vector(-43.41229, -17.749994, 0), App.Vector(-41.82458, -15, 0)),  # 6
    Part.LineSegment(App.Vector(-41.82458, -15, 0), App.Vector(-43.41229, -12.250006, 0)),  # 7
    Part.LineSegment(App.Vector(-43.41229, -12.250006, 0), App.Vector(-46.58771, -12.250006, 0)),  # 8
    Part.LineSegment(App.Vector(-46.58771, -12.250006, 0), App.Vector(-48.17542, -15, 0)),  # 9
    Part.LineSegment(App.Vector(-48.17542, -15, 0), App.Vector(-46.58771, -17.749994, 0)),  # 10
    Part.LineSegment(App.Vector(-46.58771, -17.749994, 0), App.Vector(-43.41229, -17.749994, 0)),  # 11
    Part.LineSegment(App.Vector(-13.41229, -67.749994, 0), App.Vector(-11.82458, -65, 0)),  # 12
    Part.LineSegment(App.Vector(-11.82458, -65, 0), App.Vector(-13.41229, -62.250006, 0)),  # 13
    Part.LineSegment(App.Vector(-13.41229, -62.250006, 0), App.Vector(-16.58771, -62.250006, 0)),  # 14
    Part.LineSegment(App.Vector(-16.58771, -62.250006, 0), App.Vector(-18.17542, -65, 0)),  # 15
    Part.LineSegment(App.Vector(-18.17542, -65, 0), App.Vector(-16.58771, -67.749994, 0)),  # 16
    Part.LineSegment(App.Vector(-16.58771, -67.749994, 0), App.Vector(-13.41229, -67.749994, 0)),  # 17
    Part.LineSegment(App.Vector(56.58771, -17.749994, 0), App.Vector(58.17542, -15, 0)),  # 18
    Part.LineSegment(App.Vector(58.17542, -15, 0), App.Vector(56.58771, -12.250006, 0)),  # 19
    Part.LineSegment(App.Vector(56.58771, -12.250006, 0), App.Vector(53.41229, -12.250006, 0)),  # 20
    Part.LineSegment(App.Vector(53.41229, -12.250006, 0), App.Vector(51.82458, -15, 0)),  # 21
    Part.LineSegment(App.Vector(51.82458, -15, 0), App.Vector(53.41229, -17.749994, 0)),  # 22
    Part.LineSegment(App.Vector(53.41229, -17.749994, 0), App.Vector(56.58771, -17.749994, 0)),  # 23
    Part.LineSegment(App.Vector(56.58771, 17.250006, 0), App.Vector(58.17542, 20, 0)),  # 24
    Part.LineSegment(App.Vector(58.17542, 20, 0), App.Vector(56.58771, 22.749994, 0)),  # 25
    Part.LineSegment(App.Vector(56.58771, 22.749994, 0), App.Vector(53.41229, 22.749994, 0)),  # 26
    Part.LineSegment(App.Vector(53.41229, 22.749994, 0), App.Vector(51.82458, 20, 0)),  # 27
    Part.LineSegment(App.Vector(51.82458, 20, 0), App.Vector(53.41229, 17.250006, 0)),  # 28
    Part.LineSegment(App.Vector(53.41229, 17.250006, 0), App.Vector(56.58771, 17.250006, 0)),  # 29
], False)
sketch9.addConstraint([
    Sketcher.Constraint("Coincident", 0, 2, 1, 1),
    Sketcher.Constraint("Coincident", 1, 2, 2, 1),
    Sketcher.Constraint("Coincident", 2, 2, 3, 1),
    Sketcher.Constraint("Coincident", 3, 2, 4, 1),
    Sketcher.Constraint("Coincident", 4, 2, 5, 1),
    Sketcher.Constraint("Coincident", 5, 2, 0, 1),
    Sketcher.Constraint("Coincident", 6, 2, 7, 1),
    Sketcher.Constraint("Coincident", 7, 2, 8, 1),
    Sketcher.Constraint("Coincident", 8, 2, 9, 1),
    Sketcher.Constraint("Coincident", 9, 2, 10, 1),
    Sketcher.Constraint("Coincident", 10, 2, 11, 1),
    Sketcher.Constraint("Coincident", 11, 2, 6, 1),
    Sketcher.Constraint("Coincident", 12, 2, 13, 1),
    Sketcher.Constraint("Coincident", 13, 2, 14, 1),
    Sketcher.Constraint("Coincident", 14, 2, 15, 1),
    Sketcher.Constraint("Coincident", 15, 2, 16, 1),
    Sketcher.Constraint("Coincident", 16, 2, 17, 1),
    Sketcher.Constraint("Coincident", 17, 2, 12, 1),
    Sketcher.Constraint("Coincident", 18, 2, 19, 1),
    Sketcher.Constraint("Coincident", 19, 2, 20, 1),
    Sketcher.Constraint("Coincident", 20, 2, 21, 1),
    Sketcher.Constraint("Coincident", 21, 2, 22, 1),
    Sketcher.Constraint("Coincident", 22, 2, 23, 1),
    Sketcher.Constraint("Coincident", 23, 2, 18, 1),
    Sketcher.Constraint("Coincident", 24, 2, 25, 1),
    Sketcher.Constraint("Coincident", 25, 2, 26, 1),
    Sketcher.Constraint("Coincident", 26, 2, 27, 1),
    Sketcher.Constraint("Coincident", 27, 2, 28, 1),
    Sketcher.Constraint("Coincident", 28, 2, 29, 1),
    Sketcher.Constraint("Coincident", 29, 2, 24, 1),
    Sketcher.Constraint("Horizontal", 1),
    Sketcher.Constraint("Horizontal", 4),
    Sketcher.Constraint("Horizontal", 8),
    Sketcher.Constraint("Horizontal", 11),
    Sketcher.Constraint("Horizontal", 14),
    Sketcher.Constraint("Horizontal", 17),
    Sketcher.Constraint("Horizontal", 20),
    Sketcher.Constraint("Horizontal", 23),
    Sketcher.Constraint("Horizontal", 26),
    Sketcher.Constraint("Horizontal", 29),
    Sketcher.Constraint("Parallel", 0, 3),
    Sketcher.Constraint("Parallel", 2, 5),
    Sketcher.Constraint("Parallel", 5, 6),
    Sketcher.Constraint("Parallel", 3, 7),
    Sketcher.Constraint("Parallel", 6, 9),
    Sketcher.Constraint("Parallel", 7, 10),
    Sketcher.Constraint("Parallel", 9, 12),
    Sketcher.Constraint("Parallel", 10, 13),
    Sketcher.Constraint("Parallel", 12, 15),
    Sketcher.Constraint("Parallel", 13, 16),
    Sketcher.Constraint("Parallel", 15, 18),
    Sketcher.Constraint("Parallel", 16, 19),
    Sketcher.Constraint("Parallel", 18, 21),
    Sketcher.Constraint("Parallel", 19, 22),
    Sketcher.Constraint("Parallel", 21, 24),
    Sketcher.Constraint("Parallel", 22, 25),
    Sketcher.Constraint("Parallel", 24, 27),
    Sketcher.Constraint("Parallel", 25, 28),
    Sketcher.Constraint("Horizontal", 2, 2, 5, 2),
    Sketcher.Constraint("Horizontal", 6, 2, 9, 2),
    Sketcher.Constraint("Horizontal", 12, 2, 15, 2),
    Sketcher.Constraint("Horizontal", 9, 2, 18, 2),
    Sketcher.Constraint("Horizontal", 8, 2, 19, 2),
    Sketcher.Constraint("Horizontal", 18, 2, 21, 2),
    Sketcher.Constraint("Horizontal", 11, 2, 22, 2),
    Sketcher.Constraint("Horizontal", 5, 2, 24, 2),
    Sketcher.Constraint("Horizontal", 1, 2, 25, 2),
    Sketcher.Constraint("Horizontal", 24, 2, 27, 2),
    Sketcher.Constraint("Horizontal", 4, 2, 28, 2),
    Sketcher.Constraint("Vertical", 1, 2, 3, 2),
    Sketcher.Constraint("Vertical", 0, 2, 4, 2),
    Sketcher.Constraint("Vertical", 5, 2, 6, 2),
    Sketcher.Constraint("Vertical", 4, 2, 7, 2),
    Sketcher.Constraint("Vertical", 3, 2, 8, 2),
    Sketcher.Constraint("Vertical", 8, 2, 10, 2),
    Sketcher.Constraint("Vertical", 14, 2, 16, 2),
    Sketcher.Constraint("Vertical", 18, 2, 24, 2),
    Sketcher.Constraint("Vertical", 22, 2, 26, 2),
    Sketcher.Constraint("Equal", 11, 14),
    Sketcher.Constraint("Equal", 17, 20),
    Sketcher.Constraint("Equal", 10, 12),
    Sketcher.Constraint("Angle", 0, Q("120 deg")),
    Sketcher.Constraint("DistanceY", -1, 1, 2, 2, Q("20 mm")),
    Sketcher.Constraint("DistanceY", 6, 2, -1, 1, Q("15 mm")),
    Sketcher.Constraint("DistanceY", 12, 2, -1, 1, Q("65 mm")),
    Sketcher.Constraint("DistanceX", 6, 2, 12, 2, Q("30 mm")),
    Sketcher.Constraint("DistanceX", 12, 2, 18, 2, Q("70 mm")),
    Sketcher.Constraint("DistanceX", 1, 2, 1, 1, Q("3.17542 mm")),
    Sketcher.Constraint("Distance", 0, Q("3.17542 mm")),
    Sketcher.Constraint("DistanceX", 0, 2, -1, 1, Q("43.41229 mm")),
])
pocket8 = doc.addObject("PartDesign::Pocket", "Pocket007")
body.addObject(pocket8)
pocket8.Profile = sketch9
pocket8.Length = 7

# Sketch on XY plane
sketch10 = doc.addObject("Sketcher::SketchObject", "Sketch009")
body.addObject(sketch10)
sketch10.AttachmentSupport = (doc.XY_Plane, [""])
sketch10.MapMode = "FlatFace"
sketch10.AttachmentOffset = App.Placement(App.Vector(0, 0, 10), App.Rotation())
sketch10.addGeometry([
    Part.LineSegment(App.Vector(-13.41229, -32.749994, 0), App.Vector(-11.82458, -30, 0)),  # 0
    Part.LineSegment(App.Vector(-11.82458, -30, 0), App.Vector(-13.41229, -27.250006, 0)),  # 1
    Part.LineSegment(App.Vector(-13.41229, -27.250006, 0), App.Vector(-16.58771, -27.250006, 0)),  # 2
    Part.LineSegment(App.Vector(-16.58771, -27.250006, 0), App.Vector(-18.17542, -30, 0)),  # 3
    Part.LineSegment(App.Vector(-18.17542, -30, 0), App.Vector(-16.58771, -32.749994, 0)),  # 4
    Part.LineSegment(App.Vector(-16.58771, -32.749994, 0), App.Vector(-13.41229, -32.749994, 0)),  # 5
], False)
sketch10.addConstraint([
    Sketcher.Constraint("Coincident", 0, 2, 1, 1),
    Sketcher.Constraint("Coincident", 1, 2, 2, 1),
    Sketcher.Constraint("Coincident", 2, 2, 3, 1),
    Sketcher.Constraint("Coincident", 3, 2, 4, 1),
    Sketcher.Constraint("Coincident", 4, 2, 5, 1),
    Sketcher.Constraint("Coincident", 5, 2, 0, 1),
    Sketcher.Constraint("Horizontal", 2),
    Sketcher.Constraint("Horizontal", 5),
    Sketcher.Constraint("Parallel", 0, 3),
    Sketcher.Constraint("Parallel", 1, 4),
    Sketcher.Constraint("Horizontal", 0, 2, 3, 2),
    Sketcher.Constraint("Vertical", 2, 2, 4, 2),
    Sketcher.Constraint("Vertical", 1, 2, 5, 2),
    Sketcher.Constraint("Angle", 0, Q("60 deg")),
    Sketcher.Constraint("DistanceY", 0, 2, -1, 1, Q("30 mm")),
    Sketcher.Constraint("DistanceX", 2, 2, 2, 1, Q("3.17542 mm")),
    Sketcher.Constraint("Distance", 0, Q("3.17542 mm")),
    Sketcher.Constraint("DistanceX", 0, 2, -1, 1, Q("11.82458 mm")),
])
pocket9 = doc.addObject("PartDesign::Pocket", "Pocket008")
body.addObject(pocket9)
pocket9.Profile = sketch10
pocket9.Length = 7

doc.recompute()
